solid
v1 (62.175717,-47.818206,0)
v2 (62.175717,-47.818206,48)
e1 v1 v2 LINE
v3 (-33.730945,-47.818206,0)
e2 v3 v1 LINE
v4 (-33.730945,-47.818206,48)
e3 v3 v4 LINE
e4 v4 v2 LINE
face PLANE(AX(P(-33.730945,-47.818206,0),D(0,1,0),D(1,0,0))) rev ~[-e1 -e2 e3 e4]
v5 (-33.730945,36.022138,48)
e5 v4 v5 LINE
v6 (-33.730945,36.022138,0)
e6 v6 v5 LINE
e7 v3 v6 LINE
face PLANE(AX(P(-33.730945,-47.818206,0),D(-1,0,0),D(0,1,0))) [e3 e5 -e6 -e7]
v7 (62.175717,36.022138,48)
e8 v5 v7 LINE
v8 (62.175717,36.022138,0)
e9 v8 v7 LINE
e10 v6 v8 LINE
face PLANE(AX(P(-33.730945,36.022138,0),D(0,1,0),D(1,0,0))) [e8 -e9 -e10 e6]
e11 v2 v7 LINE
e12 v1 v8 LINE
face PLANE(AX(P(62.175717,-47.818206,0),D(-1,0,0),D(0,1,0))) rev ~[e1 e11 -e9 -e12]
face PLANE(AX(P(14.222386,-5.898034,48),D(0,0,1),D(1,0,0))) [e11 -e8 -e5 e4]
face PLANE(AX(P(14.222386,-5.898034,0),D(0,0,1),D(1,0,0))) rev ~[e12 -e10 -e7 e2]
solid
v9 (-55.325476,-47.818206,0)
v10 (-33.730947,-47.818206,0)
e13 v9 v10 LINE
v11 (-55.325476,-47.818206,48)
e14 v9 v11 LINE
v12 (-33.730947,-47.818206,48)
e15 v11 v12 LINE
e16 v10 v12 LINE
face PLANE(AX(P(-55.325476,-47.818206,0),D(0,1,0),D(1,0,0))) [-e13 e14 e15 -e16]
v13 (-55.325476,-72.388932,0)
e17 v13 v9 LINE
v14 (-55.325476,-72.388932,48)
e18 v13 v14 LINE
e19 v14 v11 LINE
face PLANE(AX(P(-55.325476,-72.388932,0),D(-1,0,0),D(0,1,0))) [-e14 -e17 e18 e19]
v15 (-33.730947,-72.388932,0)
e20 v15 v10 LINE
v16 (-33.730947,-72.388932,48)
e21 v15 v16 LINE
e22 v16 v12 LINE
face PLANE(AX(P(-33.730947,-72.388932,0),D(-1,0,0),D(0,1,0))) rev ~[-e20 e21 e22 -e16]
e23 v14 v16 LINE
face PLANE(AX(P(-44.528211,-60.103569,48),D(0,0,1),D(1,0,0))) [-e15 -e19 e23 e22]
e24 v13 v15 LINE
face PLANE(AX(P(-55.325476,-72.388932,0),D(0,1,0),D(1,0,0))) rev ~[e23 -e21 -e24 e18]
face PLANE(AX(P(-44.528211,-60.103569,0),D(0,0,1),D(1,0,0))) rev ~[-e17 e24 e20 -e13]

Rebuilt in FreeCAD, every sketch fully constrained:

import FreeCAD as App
import Part
import Sketcher
from FreeCAD import Vector

doc = App.newDocument("Part")
body = doc.addObject("PartDesign::Body", "Body")
body.AllowCompound = True

# Sketch on XY plane
sketch1 = body.newObject("Sketcher::SketchObject", "Sketch")
sketch1.AttachmentSupport = (doc.getObject("XY_Plane"), [""])
sketch1.MapMode = "FlatFace"
sketch1.addGeometry([
    Part.LineSegment(Vector(-55, -48, 0), Vector(-55, -72, 0)),  # 0
    Part.LineSegment(Vector(-55, -72, 0), Vector(-34, -72, 0)),  # 1
    Part.LineSegment(Vector(-34, -72, 0), Vector(-34, -48, 0)),  # 2
    Part.LineSegment(Vector(-34, -48, 0), Vector(-55, -48, 0)),  # 3
    Part.LineSegment(Vector(-34, 36, 0), Vector(-34, -48, 0)),  # 4
    Part.LineSegment(Vector(-34, -48, 0), Vector(62, -48, 0)),  # 5
    Part.LineSegment(Vector(62, -48, 0), Vector(62, 36, 0)),  # 6
    Part.LineSegment(Vector(62, 36, 0), Vector(-34, 36, 0)),  # 7
], False)
sketch1.addConstraint([
    Sketcher.Constraint("Coincident", 0, 2, 1, 1),
    Sketcher.Constraint("Coincident", 1, 2, 2, 1),
    Sketcher.Constraint("Coincident", 2, 2, 3, 1),
    Sketcher.Constraint("Coincident", 3, 2, 0, 1),
    Sketcher.Constraint("Coincident", 4, 2, 5, 1),
    Sketcher.Constraint("Coincident", 5, 2, 6, 1),
    Sketcher.Constraint("Coincident", 6, 2, 7, 1),
    Sketcher.Constraint("Coincident", 7, 2, 4, 1),
    Sketcher.Constraint("Vertical", 0),
    Sketcher.Constraint("Horizontal", 1),
    Sketcher.Constraint("Vertical", 2),
    Sketcher.Constraint("Horizontal", 3),
    Sketcher.Constraint("Vertical", 4),
    Sketcher.Constraint("Horizontal", 5),
    Sketcher.Constraint("Vertical", 6),
    Sketcher.Constraint("Horizontal", 7),
    Sketcher.Constraint("Coincident", 4, 2, 2, 2),
    Sketcher.Constraint("DistanceX", 1, 1, 1, 2, 21.594529),
    Sketcher.Constraint("DistanceX", 5, 1, 5, 2, 95.906663),
    Sketcher.Constraint("DistanceY", 0, 2, 0, 1, 24.570726),
    Sketcher.Constraint("DistanceY", 4, 2, 4, 1, 83.840344),
    Sketcher.Constraint("DistanceY", 0, 2, -1, 1, 72.388932),
    Sketcher.Constraint("DistanceX", 0, 2, -1, 1, 55.325476),
])
pad1 = body.newObject("PartDesign::Pad", "Pad")
pad1.Profile = sketch1
pad1.Length = 48

doc.recompute()
